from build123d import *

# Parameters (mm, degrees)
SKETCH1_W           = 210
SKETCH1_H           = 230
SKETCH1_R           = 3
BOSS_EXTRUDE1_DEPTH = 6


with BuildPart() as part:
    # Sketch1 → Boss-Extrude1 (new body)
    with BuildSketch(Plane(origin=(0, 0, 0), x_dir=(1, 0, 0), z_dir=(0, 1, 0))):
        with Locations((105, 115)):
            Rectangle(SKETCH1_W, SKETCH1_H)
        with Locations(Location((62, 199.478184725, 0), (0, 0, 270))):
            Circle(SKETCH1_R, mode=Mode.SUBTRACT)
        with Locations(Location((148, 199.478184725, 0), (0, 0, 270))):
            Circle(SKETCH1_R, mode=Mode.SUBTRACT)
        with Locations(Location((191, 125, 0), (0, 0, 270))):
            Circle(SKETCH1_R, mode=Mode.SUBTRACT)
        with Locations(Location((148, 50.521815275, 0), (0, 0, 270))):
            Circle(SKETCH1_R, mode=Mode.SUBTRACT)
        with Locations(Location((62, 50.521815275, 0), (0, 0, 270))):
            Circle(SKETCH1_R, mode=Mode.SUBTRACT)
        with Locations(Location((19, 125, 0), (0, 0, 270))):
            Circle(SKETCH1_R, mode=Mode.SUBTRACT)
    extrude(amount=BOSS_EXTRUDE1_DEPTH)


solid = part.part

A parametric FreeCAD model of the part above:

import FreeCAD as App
import Part
import Sketcher
from FreeCAD import Vector
Q = App.Units.Quantity

doc = App.newDocument("Part")
body = doc.addObject("PartDesign::Body", "Body")

sketch1 = doc.addObject("Sketcher::SketchObject", "Sketch")
body.addObject(sketch1)
sketch1.AttachmentSupport = (doc.XZ_Plane, [""])
sketch1.MapMode = "FlatFace"
sketch1.addGeometry([
    Part.LineSegment(Vector(0, -230, 0), Vector(0, 0, 0)),
    Part.LineSegment(Vector(0, 0, 0), Vector(210, 0, 0)),
    Part.LineSegment(Vector(210, 0, 0), Vector(210, -230, 0)),
    Part.LineSegment(Vector(210, -230, 0), Vector(0, -230, 0)),
    Part.Circle(Vector(62, -50.521815, 0), Vector(0, 0, 1), 3),
    Part.Circle(Vector(148, -50.521815, 0), Vector(0, 0, 1), 3),
    Part.Circle(Vector(19, -125, 0), Vector(0, 0, 1), 3),
    Part.Circle(Vector(62, -199.478185, 0), Vector(0, 0, 1), 3),
    Part.Circle(Vector(191, -125, 0), Vector(0, 0, 1), 3),
    Part.Circle(Vector(148, -199.478185, 0), Vector(0, 0, 1), 3),
], False)
sketch1.addConstraint([
    Sketcher.Constraint("Coincident", 0, 2, 1, 1),
    Sketcher.Constraint("Coincident", 1, 2, 2, 1),
    Sketcher.Constraint("Coincident", 2, 2, 3, 1),
    Sketcher.Constraint("Coincident", 3, 2, 0, 1),
    Sketcher.Constraint("Vertical", 0),
    Sketcher.Constraint("Horizontal", 1),
    Sketcher.Constraint("Vertical", 2),
    Sketcher.Constraint("Horizontal", 3),
    Sketcher.Constraint("Coincident", 0, 2, -1, 1),
    Sketcher.Constraint("Equal", 4, 5),
    Sketcher.Constraint("Equal", 5, 6),
    Sketcher.Constraint("Equal", 6, 7),
    Sketcher.Constraint("Equal", 7, 8),
    Sketcher.Constraint("Equal", 8, 9),
    Sketcher.Constraint("Horizontal", 4, 3, 5, 3),
    Sketcher.Constraint("Horizontal", 6, 3, 8, 3),
    Sketcher.Constraint("Horizontal", 7, 3, 9, 3),
    Sketcher.Constraint("Vertical", 4, 3, 7, 3),
    Sketcher.Constraint("Vertical", 5, 3, 9, 3),
    Sketcher.Constraint("Diameter", 4, Q("6 mm")),
    Sketcher.Constraint("DistanceX", 1, 1, 1, 2, Q("210 mm")),
    Sketcher.Constraint("DistanceY", 0, 1, 0, 2, Q("230 mm")),
    Sketcher.Constraint("DistanceX", -1, 1, 4, 3, Q("62 mm")),
    Sketcher.Constraint("DistanceX", -1, 1, 5, 3, Q("148 mm")),
    Sketcher.Constraint("DistanceX", -1, 1, 6, 3, Q("19 mm")),
    Sketcher.Constraint("DistanceY", 6, 3, -1, 1, Q("125 mm")),
    Sketcher.Constraint("DistanceX", -1, 1, 8, 3, Q("191 mm")),
    Sketcher.Constraint("DistanceY", 7, 3, 4, 3, Q("148.956369 mm")),
    Sketcher.Constraint("DistanceY", 4, 3, -1, 1, Q("50.521815 mm")),
])
pad1 = doc.addObject("PartDesign::Pad", "Pad")
body.addObject(pad1)
pad1.Profile = sketch1
pad1.Length = 6
pad1.Reversed = True

doc.recompute()
